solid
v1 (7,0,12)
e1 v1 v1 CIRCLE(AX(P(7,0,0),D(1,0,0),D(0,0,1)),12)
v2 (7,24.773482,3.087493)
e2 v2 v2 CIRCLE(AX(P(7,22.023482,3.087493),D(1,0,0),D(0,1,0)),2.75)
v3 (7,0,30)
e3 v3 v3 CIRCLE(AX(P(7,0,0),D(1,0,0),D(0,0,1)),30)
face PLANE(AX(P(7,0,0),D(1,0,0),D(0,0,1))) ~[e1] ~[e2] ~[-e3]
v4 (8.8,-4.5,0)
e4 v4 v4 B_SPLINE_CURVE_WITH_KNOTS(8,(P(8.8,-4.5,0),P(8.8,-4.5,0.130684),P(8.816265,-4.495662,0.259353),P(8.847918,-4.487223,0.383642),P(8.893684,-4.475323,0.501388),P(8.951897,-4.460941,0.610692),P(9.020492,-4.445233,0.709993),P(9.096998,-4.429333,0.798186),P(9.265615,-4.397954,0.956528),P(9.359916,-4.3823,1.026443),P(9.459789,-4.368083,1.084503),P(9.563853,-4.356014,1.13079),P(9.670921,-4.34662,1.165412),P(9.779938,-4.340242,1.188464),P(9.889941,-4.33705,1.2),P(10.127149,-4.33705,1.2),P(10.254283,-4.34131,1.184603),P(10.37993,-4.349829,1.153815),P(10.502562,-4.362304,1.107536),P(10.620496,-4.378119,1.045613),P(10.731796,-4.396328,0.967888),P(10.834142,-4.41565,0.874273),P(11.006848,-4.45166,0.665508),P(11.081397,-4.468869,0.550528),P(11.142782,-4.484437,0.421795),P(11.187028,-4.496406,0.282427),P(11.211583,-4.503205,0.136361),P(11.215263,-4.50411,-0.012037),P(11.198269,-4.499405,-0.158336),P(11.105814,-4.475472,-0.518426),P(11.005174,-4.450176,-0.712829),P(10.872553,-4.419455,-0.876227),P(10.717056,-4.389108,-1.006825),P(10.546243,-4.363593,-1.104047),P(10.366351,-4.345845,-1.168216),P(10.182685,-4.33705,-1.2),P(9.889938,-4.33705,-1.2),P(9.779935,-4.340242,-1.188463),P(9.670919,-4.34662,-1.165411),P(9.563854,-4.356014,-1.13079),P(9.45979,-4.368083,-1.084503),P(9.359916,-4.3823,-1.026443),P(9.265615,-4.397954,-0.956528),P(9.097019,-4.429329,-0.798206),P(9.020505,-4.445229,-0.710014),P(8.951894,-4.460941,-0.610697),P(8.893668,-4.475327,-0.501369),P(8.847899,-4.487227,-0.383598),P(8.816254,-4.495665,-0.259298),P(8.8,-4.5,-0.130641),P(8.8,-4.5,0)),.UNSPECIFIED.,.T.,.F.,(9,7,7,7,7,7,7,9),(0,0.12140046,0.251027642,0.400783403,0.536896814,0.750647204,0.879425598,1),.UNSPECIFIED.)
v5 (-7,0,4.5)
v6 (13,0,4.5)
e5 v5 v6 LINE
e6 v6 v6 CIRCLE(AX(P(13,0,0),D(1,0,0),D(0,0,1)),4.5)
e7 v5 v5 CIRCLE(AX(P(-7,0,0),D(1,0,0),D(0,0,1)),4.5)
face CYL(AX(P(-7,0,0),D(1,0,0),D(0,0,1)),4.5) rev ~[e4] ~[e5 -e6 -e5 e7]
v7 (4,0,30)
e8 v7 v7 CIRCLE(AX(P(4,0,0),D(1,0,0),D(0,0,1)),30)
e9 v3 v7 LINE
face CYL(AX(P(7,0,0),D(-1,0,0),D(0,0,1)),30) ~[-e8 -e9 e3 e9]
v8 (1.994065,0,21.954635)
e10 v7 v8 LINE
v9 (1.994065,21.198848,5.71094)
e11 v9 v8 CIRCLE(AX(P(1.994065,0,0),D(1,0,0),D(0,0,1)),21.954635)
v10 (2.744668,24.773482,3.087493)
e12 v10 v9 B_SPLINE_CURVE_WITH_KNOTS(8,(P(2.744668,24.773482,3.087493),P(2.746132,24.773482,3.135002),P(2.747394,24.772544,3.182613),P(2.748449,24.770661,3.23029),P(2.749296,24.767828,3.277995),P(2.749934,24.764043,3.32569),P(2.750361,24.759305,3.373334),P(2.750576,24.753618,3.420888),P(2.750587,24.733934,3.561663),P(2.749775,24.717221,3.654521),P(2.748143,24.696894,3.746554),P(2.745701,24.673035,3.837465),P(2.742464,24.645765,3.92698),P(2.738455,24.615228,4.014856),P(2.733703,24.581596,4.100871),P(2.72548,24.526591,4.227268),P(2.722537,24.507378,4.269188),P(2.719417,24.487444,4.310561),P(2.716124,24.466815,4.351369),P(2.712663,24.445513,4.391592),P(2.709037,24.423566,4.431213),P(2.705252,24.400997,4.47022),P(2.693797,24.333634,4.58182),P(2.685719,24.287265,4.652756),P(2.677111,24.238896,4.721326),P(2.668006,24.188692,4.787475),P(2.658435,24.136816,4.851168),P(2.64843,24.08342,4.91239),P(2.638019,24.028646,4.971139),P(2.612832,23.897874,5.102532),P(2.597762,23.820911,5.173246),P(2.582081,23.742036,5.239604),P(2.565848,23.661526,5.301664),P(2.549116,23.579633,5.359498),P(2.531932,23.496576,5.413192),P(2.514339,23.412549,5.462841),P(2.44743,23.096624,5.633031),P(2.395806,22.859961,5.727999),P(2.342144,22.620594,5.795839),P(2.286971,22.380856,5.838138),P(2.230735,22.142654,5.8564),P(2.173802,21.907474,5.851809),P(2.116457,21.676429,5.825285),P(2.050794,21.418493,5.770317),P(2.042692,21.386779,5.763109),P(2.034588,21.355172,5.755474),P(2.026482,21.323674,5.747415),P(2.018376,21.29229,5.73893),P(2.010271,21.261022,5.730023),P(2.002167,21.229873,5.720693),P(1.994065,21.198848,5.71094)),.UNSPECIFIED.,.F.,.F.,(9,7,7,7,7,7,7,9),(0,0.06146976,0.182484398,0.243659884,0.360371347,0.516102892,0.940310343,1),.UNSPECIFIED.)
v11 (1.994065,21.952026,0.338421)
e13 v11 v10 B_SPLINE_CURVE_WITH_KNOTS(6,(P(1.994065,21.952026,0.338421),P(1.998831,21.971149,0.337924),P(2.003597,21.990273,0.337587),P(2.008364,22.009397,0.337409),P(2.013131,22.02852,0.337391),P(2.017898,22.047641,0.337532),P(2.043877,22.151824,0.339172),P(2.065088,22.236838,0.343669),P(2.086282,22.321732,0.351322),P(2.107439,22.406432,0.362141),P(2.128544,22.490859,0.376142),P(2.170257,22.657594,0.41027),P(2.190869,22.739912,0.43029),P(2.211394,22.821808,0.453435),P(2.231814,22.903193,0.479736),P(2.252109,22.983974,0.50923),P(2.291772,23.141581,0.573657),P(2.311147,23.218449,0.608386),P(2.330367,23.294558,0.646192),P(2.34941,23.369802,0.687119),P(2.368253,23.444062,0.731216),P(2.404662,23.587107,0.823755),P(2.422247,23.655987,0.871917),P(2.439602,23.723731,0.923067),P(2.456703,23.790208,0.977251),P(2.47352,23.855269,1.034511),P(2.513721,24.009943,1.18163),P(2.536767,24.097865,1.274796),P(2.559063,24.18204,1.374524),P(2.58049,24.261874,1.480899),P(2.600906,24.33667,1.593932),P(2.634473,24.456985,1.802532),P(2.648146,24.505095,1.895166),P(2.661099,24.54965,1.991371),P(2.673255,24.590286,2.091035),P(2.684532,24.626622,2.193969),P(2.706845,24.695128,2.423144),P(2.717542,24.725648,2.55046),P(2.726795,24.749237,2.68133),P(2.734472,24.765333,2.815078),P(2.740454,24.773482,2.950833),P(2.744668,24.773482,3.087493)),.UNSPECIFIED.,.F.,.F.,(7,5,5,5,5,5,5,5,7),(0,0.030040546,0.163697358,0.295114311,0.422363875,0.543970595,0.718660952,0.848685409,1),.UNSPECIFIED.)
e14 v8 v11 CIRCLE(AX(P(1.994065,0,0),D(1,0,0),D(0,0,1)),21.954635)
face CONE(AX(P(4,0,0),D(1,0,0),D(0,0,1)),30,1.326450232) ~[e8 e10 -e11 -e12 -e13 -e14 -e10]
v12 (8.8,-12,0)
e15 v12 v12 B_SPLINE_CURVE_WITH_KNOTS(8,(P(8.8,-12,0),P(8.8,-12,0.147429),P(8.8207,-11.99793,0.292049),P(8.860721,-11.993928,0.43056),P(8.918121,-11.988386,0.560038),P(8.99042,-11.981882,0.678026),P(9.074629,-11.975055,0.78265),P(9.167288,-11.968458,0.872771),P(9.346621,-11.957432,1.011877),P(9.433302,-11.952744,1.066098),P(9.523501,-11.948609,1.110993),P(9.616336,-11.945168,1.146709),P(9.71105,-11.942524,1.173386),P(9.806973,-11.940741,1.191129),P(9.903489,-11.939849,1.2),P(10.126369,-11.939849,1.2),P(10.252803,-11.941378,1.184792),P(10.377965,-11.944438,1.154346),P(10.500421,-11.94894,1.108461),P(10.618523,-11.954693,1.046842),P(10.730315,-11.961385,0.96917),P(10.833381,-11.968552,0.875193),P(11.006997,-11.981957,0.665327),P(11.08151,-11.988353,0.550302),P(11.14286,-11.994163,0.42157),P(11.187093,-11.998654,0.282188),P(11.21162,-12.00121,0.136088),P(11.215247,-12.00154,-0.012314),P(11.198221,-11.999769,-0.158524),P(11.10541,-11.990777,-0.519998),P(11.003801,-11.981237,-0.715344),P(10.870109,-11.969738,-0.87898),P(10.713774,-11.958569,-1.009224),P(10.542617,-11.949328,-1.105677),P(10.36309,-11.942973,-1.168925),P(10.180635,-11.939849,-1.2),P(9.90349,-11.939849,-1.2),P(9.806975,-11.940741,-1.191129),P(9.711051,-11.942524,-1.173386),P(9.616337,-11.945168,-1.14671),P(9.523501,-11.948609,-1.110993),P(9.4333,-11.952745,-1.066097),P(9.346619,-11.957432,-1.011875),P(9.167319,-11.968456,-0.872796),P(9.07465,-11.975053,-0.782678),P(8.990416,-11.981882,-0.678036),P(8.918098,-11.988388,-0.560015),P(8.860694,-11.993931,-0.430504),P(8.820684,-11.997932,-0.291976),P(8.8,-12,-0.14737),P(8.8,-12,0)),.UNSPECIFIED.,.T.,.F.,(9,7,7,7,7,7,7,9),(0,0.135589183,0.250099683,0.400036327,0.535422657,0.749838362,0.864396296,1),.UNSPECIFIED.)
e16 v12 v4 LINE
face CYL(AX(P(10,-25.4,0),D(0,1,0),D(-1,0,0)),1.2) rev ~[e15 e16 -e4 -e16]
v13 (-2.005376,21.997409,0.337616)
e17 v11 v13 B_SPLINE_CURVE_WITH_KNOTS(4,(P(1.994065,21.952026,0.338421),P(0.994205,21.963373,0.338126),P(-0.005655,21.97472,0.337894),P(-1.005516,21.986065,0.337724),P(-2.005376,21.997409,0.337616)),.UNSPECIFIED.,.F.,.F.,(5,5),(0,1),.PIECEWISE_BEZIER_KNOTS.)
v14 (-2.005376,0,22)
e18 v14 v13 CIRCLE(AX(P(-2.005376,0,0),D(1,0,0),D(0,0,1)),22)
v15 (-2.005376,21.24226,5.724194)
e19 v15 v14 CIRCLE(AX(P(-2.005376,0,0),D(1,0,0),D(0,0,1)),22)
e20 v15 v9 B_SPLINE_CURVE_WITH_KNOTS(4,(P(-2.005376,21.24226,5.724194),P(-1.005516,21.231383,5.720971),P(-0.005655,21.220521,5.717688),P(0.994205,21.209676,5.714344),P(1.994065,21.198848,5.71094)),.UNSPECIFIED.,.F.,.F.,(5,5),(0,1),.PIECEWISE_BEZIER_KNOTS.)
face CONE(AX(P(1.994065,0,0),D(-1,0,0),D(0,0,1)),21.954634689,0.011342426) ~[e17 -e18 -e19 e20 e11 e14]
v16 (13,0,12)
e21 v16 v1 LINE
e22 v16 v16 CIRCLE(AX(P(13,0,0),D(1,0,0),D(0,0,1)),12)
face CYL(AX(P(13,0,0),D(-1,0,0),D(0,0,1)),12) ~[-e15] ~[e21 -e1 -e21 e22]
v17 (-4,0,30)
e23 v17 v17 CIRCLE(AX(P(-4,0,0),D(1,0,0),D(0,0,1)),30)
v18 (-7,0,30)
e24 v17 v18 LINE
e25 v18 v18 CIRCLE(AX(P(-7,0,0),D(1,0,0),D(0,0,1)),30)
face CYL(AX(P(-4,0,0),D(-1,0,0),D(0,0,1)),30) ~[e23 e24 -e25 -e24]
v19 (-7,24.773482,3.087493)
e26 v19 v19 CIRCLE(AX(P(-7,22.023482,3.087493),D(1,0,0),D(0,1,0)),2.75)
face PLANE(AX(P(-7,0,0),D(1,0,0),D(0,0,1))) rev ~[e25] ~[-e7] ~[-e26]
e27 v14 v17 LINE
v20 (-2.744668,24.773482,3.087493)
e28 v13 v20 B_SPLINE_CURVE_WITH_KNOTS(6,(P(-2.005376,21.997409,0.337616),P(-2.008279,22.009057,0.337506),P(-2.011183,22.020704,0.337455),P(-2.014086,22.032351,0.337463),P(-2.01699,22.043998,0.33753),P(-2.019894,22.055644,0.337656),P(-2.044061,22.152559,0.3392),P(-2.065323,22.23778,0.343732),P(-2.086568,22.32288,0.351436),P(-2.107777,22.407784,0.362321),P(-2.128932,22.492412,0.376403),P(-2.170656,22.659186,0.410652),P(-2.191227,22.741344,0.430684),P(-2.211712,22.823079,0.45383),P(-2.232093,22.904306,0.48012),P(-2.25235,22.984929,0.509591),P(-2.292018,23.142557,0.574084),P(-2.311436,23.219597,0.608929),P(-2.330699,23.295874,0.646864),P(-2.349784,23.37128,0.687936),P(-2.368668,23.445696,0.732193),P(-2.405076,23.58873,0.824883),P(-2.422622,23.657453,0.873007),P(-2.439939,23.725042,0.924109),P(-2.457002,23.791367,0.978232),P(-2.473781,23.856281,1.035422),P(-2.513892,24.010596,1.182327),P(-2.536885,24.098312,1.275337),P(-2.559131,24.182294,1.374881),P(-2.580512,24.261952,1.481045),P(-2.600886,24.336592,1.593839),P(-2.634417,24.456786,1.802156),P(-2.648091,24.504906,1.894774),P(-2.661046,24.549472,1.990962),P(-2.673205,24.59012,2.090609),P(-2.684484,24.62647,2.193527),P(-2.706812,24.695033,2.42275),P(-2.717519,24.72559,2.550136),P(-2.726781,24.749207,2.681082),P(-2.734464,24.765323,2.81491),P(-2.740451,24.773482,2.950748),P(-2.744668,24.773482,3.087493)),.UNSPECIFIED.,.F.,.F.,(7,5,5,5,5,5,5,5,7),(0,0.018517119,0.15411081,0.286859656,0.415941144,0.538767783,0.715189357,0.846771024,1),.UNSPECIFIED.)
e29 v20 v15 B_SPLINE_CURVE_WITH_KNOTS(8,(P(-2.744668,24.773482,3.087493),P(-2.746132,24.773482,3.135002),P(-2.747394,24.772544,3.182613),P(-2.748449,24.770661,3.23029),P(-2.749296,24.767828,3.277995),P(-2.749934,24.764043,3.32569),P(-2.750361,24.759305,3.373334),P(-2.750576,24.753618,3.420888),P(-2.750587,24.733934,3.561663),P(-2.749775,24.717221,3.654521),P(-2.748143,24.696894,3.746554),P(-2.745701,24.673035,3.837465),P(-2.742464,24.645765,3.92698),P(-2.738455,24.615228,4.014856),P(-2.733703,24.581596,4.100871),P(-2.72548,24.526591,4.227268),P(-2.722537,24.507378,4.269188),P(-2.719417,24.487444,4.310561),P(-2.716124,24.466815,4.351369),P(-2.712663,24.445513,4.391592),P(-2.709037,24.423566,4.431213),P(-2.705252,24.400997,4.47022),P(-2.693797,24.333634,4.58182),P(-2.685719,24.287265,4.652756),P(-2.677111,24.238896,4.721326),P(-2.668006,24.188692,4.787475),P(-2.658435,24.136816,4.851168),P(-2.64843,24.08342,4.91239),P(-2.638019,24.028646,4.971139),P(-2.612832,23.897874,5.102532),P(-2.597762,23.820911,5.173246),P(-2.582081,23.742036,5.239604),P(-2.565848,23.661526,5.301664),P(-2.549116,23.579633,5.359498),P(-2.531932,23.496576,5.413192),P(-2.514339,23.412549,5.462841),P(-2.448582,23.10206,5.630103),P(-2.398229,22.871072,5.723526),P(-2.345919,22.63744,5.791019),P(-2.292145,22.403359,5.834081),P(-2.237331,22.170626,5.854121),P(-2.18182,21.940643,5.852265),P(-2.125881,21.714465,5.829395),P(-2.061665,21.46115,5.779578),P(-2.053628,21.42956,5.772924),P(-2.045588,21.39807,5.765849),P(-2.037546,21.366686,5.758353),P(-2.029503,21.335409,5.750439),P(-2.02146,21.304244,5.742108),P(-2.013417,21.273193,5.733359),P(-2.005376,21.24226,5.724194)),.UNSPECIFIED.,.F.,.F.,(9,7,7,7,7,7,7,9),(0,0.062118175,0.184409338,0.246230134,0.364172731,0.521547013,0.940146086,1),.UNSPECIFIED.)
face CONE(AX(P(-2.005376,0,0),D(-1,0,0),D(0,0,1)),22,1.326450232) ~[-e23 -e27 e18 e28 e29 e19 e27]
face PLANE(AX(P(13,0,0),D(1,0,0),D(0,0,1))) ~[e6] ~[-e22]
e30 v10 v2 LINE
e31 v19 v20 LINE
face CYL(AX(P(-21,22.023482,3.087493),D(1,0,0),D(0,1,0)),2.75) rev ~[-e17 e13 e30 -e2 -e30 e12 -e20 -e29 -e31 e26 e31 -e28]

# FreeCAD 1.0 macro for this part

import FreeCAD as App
import Part
import Sketcher

V = App.Vector
Q = App.Units.Quantity


def add_polygon(sketch, points):
    """Adds a closed chain of lines whose ends are joined by coincident constraints."""
    first, n = sketch.GeometryCount, len(points)
    for a, b in zip(points, points[1:] + points[:1]):
        sketch.addGeometry(Part.LineSegment(App.Vector(*a, 0), App.Vector(*b, 0)), False)
    for i in range(n):
        sketch.addConstraint(Sketcher.Constraint("Coincident", first + i, 2, first + (i + 1) % n, 1))

doc = App.newDocument("Part")
body = doc.addObject("PartDesign::Body", "Body")

# Sketch on XZ plane
sketch1 = doc.addObject("Sketcher::SketchObject", "Sketch")
body.addObject(sketch1)
sketch1.AttachmentSupport = (doc.XZ_Plane, [""])
sketch1.MapMode = "FlatFace"
add_polygon(sketch1, [(-7, 30), (-7, 4.5), (13, 4.5), (13, 12), (7, 12), (7, 30), (4, 30), (2, 22), (-2, 22), (-4, 30)])  # lines 0-9
sketch1.addConstraint([
    Sketcher.Constraint("Vertical", 0),
    Sketcher.Constraint("Horizontal", 1),
    Sketcher.Constraint("Vertical", 2),
    Sketcher.Constraint("Horizontal", 3),
    Sketcher.Constraint("Vertical", 4),
    Sketcher.Constraint("Horizontal", 5),
    Sketcher.Constraint("Horizontal", 9),
    Sketcher.Constraint("Symmetric", 5, 2, 8, 2, -2),
    Sketcher.Constraint("Equal", 5, 9),
    Sketcher.Constraint("DistanceX", 1, 1, 1, 2, Q("20 mm")),
    Sketcher.Constraint("DistanceX", 3, 2, 3, 1, Q("6 mm")),
    Sketcher.Constraint("DistanceX", 5, 2, 5, 1, Q("3 mm")),
    Sketcher.Constraint("DistanceY", 4, 1, 4, 2, Q("18 mm")),
    Sketcher.Constraint("Angle", 6, Q("-104 deg")),
    Sketcher.Constraint("Angle", 8, Q("104 deg")),
    Sketcher.Constraint("DistanceY", 0, 2, 0, 1, Q("25.5 mm")),
    Sketcher.Constraint("DistanceY", -1, 1, 2, 2, Q("12 mm")),
    Sketcher.Constraint("DistanceY", -1, 1, 7, 2, Q("22 mm")),
    Sketcher.Constraint("Distance", 7, Q("3.999698 mm")),
])
revolution = doc.addObject("PartDesign::Revolution", "Revolution")
body.addObject(revolution)
revolution.Profile = sketch1
revolution.ReferenceAxis = (sketch1, ["H_Axis"])
revolution.Angle = 360

# Sketch on YZ plane
sketch2 = doc.addObject("Sketcher::SketchObject", "Sketch001")
body.addObject(sketch2)
sketch2.AttachmentSupport = (doc.YZ_Plane, [""])
sketch2.MapMode = "FlatFace"
sketch2.AttachmentOffset = App.Placement(V(0, 0, -7), App.Rotation())
sketch2.addGeometry(Part.Circle(V(22, 3.1, 0), V(0, 0, 1), 2.8), False)
sketch2.addConstraint([
    Sketcher.Constraint("Diameter", 0, Q("5.5 mm")),
    Sketcher.Constraint("DistanceX", -1, 1, 0, 3, Q("22.023482 mm")),
    Sketcher.Constraint("DistanceY", -1, 1, 0, 3, Q("3.087493 mm")),
])
doc.recompute()
hole = doc.addObject("PartDesign::Hole", "Hole")
body.addObject(hole)
hole.Profile = sketch2
hole.ThreadType = "None"
hole.Diameter = 5.5
hole.DepthType = "Dimension"
hole.Depth = 14
hole.DrillPoint = "Angled"
hole.DrillPointAngle = 118
hole.Reversed = True

# Sketch on XZ plane
sketch3 = doc.addObject("Sketcher::SketchObject", "Sketch002")
body.addObject(sketch3)
sketch3.AttachmentSupport = (doc.XZ_Plane, [""])
sketch3.MapMode = "FlatFace"
sketch3.AttachmentOffset = App.Placement(V(0, 0, 12), App.Rotation())
sketch3.addGeometry(Part.Circle(V(10, 0, 0), V(0, 0, 1), 1.2), False)
sketch3.addConstraint([
    Sketcher.Constraint("PointOnObject", 0, 3, -1),
    Sketcher.Constraint("Diameter", 0, Q("2.4 mm")),
    Sketcher.Constraint("DistanceX", -1, 1, 0, 3, Q("10 mm")),
])
doc.recompute()
hole2 = doc.addObject("PartDesign::Hole", "Hole001")
body.addObject(hole2)
hole2.Profile = sketch3
hole2.ThreadType = "None"
hole2.Diameter = 2.4
hole2.DepthType = "Dimension"
hole2.Depth = 13.4
hole2.DrillPoint = "Angled"
hole2.DrillPointAngle = 118

doc.recompute()
